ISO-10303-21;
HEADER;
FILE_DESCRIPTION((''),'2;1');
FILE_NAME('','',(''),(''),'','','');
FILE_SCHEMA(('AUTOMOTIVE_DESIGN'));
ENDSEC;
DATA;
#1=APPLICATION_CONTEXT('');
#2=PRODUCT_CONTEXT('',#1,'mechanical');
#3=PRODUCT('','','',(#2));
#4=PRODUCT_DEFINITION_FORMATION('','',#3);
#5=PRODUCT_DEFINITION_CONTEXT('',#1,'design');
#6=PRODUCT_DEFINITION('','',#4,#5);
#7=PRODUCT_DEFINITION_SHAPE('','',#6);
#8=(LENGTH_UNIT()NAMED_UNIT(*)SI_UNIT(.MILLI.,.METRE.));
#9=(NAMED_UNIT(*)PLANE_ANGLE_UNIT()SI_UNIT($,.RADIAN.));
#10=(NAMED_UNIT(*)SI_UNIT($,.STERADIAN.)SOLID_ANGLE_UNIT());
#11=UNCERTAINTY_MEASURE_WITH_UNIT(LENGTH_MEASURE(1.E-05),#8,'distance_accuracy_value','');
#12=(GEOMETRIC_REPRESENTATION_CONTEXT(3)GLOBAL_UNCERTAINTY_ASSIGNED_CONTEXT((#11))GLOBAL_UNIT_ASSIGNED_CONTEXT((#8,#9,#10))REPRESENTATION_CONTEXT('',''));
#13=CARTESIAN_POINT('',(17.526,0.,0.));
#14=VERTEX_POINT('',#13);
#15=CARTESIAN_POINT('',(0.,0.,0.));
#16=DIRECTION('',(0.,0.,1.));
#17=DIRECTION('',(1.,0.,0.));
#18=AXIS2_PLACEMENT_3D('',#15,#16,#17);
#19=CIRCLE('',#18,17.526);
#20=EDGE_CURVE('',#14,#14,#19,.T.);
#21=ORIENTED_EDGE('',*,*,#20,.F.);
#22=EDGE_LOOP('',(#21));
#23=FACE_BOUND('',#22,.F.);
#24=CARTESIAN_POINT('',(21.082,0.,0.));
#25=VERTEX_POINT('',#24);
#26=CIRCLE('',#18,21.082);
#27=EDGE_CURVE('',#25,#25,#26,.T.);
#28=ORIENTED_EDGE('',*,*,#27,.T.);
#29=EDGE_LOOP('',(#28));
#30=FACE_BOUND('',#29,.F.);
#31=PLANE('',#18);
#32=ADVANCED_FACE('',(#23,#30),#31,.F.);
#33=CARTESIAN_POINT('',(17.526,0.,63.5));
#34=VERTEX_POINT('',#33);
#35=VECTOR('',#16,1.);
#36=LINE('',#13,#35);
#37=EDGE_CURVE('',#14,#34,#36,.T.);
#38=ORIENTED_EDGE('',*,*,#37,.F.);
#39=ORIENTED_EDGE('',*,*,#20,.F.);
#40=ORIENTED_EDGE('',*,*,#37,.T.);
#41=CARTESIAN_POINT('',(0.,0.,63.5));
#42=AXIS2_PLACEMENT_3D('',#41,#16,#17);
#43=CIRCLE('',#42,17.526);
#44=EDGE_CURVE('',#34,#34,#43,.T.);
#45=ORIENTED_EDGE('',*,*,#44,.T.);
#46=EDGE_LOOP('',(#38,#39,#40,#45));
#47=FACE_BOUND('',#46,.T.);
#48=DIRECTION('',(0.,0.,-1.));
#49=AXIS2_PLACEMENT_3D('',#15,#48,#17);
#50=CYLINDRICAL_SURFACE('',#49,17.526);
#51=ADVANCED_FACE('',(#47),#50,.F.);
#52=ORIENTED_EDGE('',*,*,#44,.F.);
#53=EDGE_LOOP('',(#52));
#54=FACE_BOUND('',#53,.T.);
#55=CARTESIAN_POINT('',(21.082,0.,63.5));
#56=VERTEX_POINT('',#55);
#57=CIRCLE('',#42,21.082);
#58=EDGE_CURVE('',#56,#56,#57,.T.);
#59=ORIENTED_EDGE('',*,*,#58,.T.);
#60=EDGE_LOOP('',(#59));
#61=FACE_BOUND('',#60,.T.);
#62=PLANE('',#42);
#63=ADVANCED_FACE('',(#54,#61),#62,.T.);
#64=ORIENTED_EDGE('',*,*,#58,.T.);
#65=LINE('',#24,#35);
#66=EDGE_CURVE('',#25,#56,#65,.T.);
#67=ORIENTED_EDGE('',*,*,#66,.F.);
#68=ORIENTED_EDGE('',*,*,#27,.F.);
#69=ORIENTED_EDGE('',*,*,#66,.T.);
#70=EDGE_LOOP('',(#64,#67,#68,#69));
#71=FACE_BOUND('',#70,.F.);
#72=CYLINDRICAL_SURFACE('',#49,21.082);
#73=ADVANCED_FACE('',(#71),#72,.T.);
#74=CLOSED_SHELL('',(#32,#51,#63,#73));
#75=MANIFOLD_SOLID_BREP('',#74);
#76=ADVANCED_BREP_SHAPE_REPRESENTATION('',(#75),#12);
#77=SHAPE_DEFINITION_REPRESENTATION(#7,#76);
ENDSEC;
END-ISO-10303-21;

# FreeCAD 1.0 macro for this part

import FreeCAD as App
import Part
import Sketcher
Q = App.Units.Quantity

doc = App.newDocument("Part")
body = doc.addObject("PartDesign::Body", "Body")

sketch1 = doc.addObject("Sketcher::SketchObject", "Sketch")
body.addObject(sketch1)
sketch1.AttachmentSupport = (doc.XY_Plane, [""])
sketch1.MapMode = "FlatFace"
sketch1.addGeometry([
    Part.Circle(App.Vector(0, 0, 0), App.Vector(0, 0, 1), 21),
    Part.Circle(App.Vector(0, 0, 0), App.Vector(0, 0, 1), 18),
], False)
sketch1.addConstraint([
    Sketcher.Constraint("Coincident", 0, 3, -1, 1),
    Sketcher.Constraint("Coincident", 1, 3, -1, 1),
    Sketcher.Constraint("Diameter", 0, Q("1.66 in")),
    Sketcher.Constraint("Diameter", 1, Q("1.38 in")),
])
pad1 = doc.addObject("PartDesign::Pad", "Pad")
body.addObject(pad1)
pad1.Profile = sketch1
pad1.Length = Q("2.5 in")

doc.recompute()
